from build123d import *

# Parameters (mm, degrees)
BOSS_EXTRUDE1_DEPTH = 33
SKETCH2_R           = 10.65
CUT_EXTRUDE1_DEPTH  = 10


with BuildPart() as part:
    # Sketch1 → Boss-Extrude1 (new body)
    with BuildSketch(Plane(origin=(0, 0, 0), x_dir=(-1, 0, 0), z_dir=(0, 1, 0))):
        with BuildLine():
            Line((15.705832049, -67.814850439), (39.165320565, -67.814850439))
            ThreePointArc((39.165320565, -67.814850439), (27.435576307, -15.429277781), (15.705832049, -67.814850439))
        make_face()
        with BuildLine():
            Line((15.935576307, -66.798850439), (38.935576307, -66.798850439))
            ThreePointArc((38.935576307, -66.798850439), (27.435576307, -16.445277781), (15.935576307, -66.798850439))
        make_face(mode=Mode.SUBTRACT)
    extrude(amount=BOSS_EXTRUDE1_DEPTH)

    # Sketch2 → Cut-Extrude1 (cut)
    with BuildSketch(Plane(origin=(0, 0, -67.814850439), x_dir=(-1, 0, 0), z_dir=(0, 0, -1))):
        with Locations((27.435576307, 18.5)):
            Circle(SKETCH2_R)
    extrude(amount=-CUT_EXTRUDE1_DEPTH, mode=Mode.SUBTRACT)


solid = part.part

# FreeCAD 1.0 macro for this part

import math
import FreeCAD as App
import Part
import Sketcher
from FreeCAD import Vector

doc = App.newDocument("Part")
body = doc.addObject("PartDesign::Body", "Body")

# Sketch on XZ plane
sketch1 = doc.addObject("Sketcher::SketchObject", "Sketch")
body.addObject(sketch1)
sketch1.AttachmentSupport = (doc.XZ_Plane, [""])
sketch1.MapMode = "FlatFace"
sketch1.addGeometry(Part.LineSegment(Vector(-15.705832, -67.81485, 0), Vector(-39.165321, -67.81485, 0)), False)
sketch1.addGeometry(Part.ArcOfCircle(Part.Circle(Vector(-27.435576, -42.935278, 0), Vector(0, 0, 1), 27.506), math.radians(-64.757958), math.radians(244.757958)), False)
sketch1.addGeometry(Part.LineSegment(Vector(-38.935576, -66.79885, 0), Vector(-15.935576, -66.79885, 0)), False)
sketch1.addGeometry(Part.ArcOfCircle(Part.Circle(Vector(-27.435576, -42.935278, 0), Vector(0, 0, 1), 26.49), math.radians(-64.270302), math.radians(244.270302)), False)
sketch1.addConstraint(Sketcher.Constraint("Coincident", 0, 1, 1, 1))
sketch1.addConstraint(Sketcher.Constraint("Coincident", 1, 2, 0, 2))
sketch1.addConstraint(Sketcher.Constraint("Coincident", 2, 1, 3, 2))
sketch1.addConstraint(Sketcher.Constraint("Coincident", 3, 1, 2, 2))
sketch1.addConstraint(Sketcher.Constraint("Horizontal", 0))
sketch1.addConstraint(Sketcher.Constraint("Horizontal", 2))
sketch1.addConstraint(Sketcher.Constraint("Coincident", 3, 3, 1, 3))
sketch1.addConstraint(Sketcher.Constraint("DistanceX", 2, 1, 2, 2, 23.0))
sketch1.addConstraint(Sketcher.Constraint("Radius", 3, 26.49))
sketch1.addConstraint(Sketcher.Constraint("Radius", 1, 27.506))
sketch1.addConstraint(Sketcher.Constraint("DistanceY", 1, 2, 2, 1, 1.016))
sketch1.addConstraint(Sketcher.Constraint("DistanceY", 0, 1, -1, 1, 67.81485))
sketch1.addConstraint(Sketcher.Constraint("DistanceX", 1, 2, -1, 1, 39.165321))
pad1 = doc.addObject("PartDesign::Pad", "Pad")
body.addObject(pad1)
pad1.Profile = sketch1
pad1.Length = 33
pad1.Reversed = True

# Sketch on XY plane
sketch2 = doc.addObject("Sketcher::SketchObject", "Sketch001")
body.addObject(sketch2)
sketch2.AttachmentSupport = (doc.XY_Plane, [""])
sketch2.MapMode = "FlatFace"
sketch2.AttachmentOffset = App.Placement(Vector(0, 0, -67.81485), App.Rotation())
sketch2.addGeometry(Part.Circle(Vector(-27.435576, 18.5, 0), Vector(0, 0, 1), 10.65), False)
sketch2.addConstraint(Sketcher.Constraint("Diameter", 0, 21.3))
sketch2.addConstraint(Sketcher.Constraint("DistanceY", -1, 1, 0, 3, 18.5))
sketch2.addConstraint(Sketcher.Constraint("DistanceX", 0, 3, -1, 1, 27.435576))
pocket1 = doc.addObject("PartDesign::Pocket", "Pocket")
body.addObject(pocket1)
pocket1.Profile = sketch2
pocket1.Length = 10
pocket1.Reversed = True

doc.recompute()
